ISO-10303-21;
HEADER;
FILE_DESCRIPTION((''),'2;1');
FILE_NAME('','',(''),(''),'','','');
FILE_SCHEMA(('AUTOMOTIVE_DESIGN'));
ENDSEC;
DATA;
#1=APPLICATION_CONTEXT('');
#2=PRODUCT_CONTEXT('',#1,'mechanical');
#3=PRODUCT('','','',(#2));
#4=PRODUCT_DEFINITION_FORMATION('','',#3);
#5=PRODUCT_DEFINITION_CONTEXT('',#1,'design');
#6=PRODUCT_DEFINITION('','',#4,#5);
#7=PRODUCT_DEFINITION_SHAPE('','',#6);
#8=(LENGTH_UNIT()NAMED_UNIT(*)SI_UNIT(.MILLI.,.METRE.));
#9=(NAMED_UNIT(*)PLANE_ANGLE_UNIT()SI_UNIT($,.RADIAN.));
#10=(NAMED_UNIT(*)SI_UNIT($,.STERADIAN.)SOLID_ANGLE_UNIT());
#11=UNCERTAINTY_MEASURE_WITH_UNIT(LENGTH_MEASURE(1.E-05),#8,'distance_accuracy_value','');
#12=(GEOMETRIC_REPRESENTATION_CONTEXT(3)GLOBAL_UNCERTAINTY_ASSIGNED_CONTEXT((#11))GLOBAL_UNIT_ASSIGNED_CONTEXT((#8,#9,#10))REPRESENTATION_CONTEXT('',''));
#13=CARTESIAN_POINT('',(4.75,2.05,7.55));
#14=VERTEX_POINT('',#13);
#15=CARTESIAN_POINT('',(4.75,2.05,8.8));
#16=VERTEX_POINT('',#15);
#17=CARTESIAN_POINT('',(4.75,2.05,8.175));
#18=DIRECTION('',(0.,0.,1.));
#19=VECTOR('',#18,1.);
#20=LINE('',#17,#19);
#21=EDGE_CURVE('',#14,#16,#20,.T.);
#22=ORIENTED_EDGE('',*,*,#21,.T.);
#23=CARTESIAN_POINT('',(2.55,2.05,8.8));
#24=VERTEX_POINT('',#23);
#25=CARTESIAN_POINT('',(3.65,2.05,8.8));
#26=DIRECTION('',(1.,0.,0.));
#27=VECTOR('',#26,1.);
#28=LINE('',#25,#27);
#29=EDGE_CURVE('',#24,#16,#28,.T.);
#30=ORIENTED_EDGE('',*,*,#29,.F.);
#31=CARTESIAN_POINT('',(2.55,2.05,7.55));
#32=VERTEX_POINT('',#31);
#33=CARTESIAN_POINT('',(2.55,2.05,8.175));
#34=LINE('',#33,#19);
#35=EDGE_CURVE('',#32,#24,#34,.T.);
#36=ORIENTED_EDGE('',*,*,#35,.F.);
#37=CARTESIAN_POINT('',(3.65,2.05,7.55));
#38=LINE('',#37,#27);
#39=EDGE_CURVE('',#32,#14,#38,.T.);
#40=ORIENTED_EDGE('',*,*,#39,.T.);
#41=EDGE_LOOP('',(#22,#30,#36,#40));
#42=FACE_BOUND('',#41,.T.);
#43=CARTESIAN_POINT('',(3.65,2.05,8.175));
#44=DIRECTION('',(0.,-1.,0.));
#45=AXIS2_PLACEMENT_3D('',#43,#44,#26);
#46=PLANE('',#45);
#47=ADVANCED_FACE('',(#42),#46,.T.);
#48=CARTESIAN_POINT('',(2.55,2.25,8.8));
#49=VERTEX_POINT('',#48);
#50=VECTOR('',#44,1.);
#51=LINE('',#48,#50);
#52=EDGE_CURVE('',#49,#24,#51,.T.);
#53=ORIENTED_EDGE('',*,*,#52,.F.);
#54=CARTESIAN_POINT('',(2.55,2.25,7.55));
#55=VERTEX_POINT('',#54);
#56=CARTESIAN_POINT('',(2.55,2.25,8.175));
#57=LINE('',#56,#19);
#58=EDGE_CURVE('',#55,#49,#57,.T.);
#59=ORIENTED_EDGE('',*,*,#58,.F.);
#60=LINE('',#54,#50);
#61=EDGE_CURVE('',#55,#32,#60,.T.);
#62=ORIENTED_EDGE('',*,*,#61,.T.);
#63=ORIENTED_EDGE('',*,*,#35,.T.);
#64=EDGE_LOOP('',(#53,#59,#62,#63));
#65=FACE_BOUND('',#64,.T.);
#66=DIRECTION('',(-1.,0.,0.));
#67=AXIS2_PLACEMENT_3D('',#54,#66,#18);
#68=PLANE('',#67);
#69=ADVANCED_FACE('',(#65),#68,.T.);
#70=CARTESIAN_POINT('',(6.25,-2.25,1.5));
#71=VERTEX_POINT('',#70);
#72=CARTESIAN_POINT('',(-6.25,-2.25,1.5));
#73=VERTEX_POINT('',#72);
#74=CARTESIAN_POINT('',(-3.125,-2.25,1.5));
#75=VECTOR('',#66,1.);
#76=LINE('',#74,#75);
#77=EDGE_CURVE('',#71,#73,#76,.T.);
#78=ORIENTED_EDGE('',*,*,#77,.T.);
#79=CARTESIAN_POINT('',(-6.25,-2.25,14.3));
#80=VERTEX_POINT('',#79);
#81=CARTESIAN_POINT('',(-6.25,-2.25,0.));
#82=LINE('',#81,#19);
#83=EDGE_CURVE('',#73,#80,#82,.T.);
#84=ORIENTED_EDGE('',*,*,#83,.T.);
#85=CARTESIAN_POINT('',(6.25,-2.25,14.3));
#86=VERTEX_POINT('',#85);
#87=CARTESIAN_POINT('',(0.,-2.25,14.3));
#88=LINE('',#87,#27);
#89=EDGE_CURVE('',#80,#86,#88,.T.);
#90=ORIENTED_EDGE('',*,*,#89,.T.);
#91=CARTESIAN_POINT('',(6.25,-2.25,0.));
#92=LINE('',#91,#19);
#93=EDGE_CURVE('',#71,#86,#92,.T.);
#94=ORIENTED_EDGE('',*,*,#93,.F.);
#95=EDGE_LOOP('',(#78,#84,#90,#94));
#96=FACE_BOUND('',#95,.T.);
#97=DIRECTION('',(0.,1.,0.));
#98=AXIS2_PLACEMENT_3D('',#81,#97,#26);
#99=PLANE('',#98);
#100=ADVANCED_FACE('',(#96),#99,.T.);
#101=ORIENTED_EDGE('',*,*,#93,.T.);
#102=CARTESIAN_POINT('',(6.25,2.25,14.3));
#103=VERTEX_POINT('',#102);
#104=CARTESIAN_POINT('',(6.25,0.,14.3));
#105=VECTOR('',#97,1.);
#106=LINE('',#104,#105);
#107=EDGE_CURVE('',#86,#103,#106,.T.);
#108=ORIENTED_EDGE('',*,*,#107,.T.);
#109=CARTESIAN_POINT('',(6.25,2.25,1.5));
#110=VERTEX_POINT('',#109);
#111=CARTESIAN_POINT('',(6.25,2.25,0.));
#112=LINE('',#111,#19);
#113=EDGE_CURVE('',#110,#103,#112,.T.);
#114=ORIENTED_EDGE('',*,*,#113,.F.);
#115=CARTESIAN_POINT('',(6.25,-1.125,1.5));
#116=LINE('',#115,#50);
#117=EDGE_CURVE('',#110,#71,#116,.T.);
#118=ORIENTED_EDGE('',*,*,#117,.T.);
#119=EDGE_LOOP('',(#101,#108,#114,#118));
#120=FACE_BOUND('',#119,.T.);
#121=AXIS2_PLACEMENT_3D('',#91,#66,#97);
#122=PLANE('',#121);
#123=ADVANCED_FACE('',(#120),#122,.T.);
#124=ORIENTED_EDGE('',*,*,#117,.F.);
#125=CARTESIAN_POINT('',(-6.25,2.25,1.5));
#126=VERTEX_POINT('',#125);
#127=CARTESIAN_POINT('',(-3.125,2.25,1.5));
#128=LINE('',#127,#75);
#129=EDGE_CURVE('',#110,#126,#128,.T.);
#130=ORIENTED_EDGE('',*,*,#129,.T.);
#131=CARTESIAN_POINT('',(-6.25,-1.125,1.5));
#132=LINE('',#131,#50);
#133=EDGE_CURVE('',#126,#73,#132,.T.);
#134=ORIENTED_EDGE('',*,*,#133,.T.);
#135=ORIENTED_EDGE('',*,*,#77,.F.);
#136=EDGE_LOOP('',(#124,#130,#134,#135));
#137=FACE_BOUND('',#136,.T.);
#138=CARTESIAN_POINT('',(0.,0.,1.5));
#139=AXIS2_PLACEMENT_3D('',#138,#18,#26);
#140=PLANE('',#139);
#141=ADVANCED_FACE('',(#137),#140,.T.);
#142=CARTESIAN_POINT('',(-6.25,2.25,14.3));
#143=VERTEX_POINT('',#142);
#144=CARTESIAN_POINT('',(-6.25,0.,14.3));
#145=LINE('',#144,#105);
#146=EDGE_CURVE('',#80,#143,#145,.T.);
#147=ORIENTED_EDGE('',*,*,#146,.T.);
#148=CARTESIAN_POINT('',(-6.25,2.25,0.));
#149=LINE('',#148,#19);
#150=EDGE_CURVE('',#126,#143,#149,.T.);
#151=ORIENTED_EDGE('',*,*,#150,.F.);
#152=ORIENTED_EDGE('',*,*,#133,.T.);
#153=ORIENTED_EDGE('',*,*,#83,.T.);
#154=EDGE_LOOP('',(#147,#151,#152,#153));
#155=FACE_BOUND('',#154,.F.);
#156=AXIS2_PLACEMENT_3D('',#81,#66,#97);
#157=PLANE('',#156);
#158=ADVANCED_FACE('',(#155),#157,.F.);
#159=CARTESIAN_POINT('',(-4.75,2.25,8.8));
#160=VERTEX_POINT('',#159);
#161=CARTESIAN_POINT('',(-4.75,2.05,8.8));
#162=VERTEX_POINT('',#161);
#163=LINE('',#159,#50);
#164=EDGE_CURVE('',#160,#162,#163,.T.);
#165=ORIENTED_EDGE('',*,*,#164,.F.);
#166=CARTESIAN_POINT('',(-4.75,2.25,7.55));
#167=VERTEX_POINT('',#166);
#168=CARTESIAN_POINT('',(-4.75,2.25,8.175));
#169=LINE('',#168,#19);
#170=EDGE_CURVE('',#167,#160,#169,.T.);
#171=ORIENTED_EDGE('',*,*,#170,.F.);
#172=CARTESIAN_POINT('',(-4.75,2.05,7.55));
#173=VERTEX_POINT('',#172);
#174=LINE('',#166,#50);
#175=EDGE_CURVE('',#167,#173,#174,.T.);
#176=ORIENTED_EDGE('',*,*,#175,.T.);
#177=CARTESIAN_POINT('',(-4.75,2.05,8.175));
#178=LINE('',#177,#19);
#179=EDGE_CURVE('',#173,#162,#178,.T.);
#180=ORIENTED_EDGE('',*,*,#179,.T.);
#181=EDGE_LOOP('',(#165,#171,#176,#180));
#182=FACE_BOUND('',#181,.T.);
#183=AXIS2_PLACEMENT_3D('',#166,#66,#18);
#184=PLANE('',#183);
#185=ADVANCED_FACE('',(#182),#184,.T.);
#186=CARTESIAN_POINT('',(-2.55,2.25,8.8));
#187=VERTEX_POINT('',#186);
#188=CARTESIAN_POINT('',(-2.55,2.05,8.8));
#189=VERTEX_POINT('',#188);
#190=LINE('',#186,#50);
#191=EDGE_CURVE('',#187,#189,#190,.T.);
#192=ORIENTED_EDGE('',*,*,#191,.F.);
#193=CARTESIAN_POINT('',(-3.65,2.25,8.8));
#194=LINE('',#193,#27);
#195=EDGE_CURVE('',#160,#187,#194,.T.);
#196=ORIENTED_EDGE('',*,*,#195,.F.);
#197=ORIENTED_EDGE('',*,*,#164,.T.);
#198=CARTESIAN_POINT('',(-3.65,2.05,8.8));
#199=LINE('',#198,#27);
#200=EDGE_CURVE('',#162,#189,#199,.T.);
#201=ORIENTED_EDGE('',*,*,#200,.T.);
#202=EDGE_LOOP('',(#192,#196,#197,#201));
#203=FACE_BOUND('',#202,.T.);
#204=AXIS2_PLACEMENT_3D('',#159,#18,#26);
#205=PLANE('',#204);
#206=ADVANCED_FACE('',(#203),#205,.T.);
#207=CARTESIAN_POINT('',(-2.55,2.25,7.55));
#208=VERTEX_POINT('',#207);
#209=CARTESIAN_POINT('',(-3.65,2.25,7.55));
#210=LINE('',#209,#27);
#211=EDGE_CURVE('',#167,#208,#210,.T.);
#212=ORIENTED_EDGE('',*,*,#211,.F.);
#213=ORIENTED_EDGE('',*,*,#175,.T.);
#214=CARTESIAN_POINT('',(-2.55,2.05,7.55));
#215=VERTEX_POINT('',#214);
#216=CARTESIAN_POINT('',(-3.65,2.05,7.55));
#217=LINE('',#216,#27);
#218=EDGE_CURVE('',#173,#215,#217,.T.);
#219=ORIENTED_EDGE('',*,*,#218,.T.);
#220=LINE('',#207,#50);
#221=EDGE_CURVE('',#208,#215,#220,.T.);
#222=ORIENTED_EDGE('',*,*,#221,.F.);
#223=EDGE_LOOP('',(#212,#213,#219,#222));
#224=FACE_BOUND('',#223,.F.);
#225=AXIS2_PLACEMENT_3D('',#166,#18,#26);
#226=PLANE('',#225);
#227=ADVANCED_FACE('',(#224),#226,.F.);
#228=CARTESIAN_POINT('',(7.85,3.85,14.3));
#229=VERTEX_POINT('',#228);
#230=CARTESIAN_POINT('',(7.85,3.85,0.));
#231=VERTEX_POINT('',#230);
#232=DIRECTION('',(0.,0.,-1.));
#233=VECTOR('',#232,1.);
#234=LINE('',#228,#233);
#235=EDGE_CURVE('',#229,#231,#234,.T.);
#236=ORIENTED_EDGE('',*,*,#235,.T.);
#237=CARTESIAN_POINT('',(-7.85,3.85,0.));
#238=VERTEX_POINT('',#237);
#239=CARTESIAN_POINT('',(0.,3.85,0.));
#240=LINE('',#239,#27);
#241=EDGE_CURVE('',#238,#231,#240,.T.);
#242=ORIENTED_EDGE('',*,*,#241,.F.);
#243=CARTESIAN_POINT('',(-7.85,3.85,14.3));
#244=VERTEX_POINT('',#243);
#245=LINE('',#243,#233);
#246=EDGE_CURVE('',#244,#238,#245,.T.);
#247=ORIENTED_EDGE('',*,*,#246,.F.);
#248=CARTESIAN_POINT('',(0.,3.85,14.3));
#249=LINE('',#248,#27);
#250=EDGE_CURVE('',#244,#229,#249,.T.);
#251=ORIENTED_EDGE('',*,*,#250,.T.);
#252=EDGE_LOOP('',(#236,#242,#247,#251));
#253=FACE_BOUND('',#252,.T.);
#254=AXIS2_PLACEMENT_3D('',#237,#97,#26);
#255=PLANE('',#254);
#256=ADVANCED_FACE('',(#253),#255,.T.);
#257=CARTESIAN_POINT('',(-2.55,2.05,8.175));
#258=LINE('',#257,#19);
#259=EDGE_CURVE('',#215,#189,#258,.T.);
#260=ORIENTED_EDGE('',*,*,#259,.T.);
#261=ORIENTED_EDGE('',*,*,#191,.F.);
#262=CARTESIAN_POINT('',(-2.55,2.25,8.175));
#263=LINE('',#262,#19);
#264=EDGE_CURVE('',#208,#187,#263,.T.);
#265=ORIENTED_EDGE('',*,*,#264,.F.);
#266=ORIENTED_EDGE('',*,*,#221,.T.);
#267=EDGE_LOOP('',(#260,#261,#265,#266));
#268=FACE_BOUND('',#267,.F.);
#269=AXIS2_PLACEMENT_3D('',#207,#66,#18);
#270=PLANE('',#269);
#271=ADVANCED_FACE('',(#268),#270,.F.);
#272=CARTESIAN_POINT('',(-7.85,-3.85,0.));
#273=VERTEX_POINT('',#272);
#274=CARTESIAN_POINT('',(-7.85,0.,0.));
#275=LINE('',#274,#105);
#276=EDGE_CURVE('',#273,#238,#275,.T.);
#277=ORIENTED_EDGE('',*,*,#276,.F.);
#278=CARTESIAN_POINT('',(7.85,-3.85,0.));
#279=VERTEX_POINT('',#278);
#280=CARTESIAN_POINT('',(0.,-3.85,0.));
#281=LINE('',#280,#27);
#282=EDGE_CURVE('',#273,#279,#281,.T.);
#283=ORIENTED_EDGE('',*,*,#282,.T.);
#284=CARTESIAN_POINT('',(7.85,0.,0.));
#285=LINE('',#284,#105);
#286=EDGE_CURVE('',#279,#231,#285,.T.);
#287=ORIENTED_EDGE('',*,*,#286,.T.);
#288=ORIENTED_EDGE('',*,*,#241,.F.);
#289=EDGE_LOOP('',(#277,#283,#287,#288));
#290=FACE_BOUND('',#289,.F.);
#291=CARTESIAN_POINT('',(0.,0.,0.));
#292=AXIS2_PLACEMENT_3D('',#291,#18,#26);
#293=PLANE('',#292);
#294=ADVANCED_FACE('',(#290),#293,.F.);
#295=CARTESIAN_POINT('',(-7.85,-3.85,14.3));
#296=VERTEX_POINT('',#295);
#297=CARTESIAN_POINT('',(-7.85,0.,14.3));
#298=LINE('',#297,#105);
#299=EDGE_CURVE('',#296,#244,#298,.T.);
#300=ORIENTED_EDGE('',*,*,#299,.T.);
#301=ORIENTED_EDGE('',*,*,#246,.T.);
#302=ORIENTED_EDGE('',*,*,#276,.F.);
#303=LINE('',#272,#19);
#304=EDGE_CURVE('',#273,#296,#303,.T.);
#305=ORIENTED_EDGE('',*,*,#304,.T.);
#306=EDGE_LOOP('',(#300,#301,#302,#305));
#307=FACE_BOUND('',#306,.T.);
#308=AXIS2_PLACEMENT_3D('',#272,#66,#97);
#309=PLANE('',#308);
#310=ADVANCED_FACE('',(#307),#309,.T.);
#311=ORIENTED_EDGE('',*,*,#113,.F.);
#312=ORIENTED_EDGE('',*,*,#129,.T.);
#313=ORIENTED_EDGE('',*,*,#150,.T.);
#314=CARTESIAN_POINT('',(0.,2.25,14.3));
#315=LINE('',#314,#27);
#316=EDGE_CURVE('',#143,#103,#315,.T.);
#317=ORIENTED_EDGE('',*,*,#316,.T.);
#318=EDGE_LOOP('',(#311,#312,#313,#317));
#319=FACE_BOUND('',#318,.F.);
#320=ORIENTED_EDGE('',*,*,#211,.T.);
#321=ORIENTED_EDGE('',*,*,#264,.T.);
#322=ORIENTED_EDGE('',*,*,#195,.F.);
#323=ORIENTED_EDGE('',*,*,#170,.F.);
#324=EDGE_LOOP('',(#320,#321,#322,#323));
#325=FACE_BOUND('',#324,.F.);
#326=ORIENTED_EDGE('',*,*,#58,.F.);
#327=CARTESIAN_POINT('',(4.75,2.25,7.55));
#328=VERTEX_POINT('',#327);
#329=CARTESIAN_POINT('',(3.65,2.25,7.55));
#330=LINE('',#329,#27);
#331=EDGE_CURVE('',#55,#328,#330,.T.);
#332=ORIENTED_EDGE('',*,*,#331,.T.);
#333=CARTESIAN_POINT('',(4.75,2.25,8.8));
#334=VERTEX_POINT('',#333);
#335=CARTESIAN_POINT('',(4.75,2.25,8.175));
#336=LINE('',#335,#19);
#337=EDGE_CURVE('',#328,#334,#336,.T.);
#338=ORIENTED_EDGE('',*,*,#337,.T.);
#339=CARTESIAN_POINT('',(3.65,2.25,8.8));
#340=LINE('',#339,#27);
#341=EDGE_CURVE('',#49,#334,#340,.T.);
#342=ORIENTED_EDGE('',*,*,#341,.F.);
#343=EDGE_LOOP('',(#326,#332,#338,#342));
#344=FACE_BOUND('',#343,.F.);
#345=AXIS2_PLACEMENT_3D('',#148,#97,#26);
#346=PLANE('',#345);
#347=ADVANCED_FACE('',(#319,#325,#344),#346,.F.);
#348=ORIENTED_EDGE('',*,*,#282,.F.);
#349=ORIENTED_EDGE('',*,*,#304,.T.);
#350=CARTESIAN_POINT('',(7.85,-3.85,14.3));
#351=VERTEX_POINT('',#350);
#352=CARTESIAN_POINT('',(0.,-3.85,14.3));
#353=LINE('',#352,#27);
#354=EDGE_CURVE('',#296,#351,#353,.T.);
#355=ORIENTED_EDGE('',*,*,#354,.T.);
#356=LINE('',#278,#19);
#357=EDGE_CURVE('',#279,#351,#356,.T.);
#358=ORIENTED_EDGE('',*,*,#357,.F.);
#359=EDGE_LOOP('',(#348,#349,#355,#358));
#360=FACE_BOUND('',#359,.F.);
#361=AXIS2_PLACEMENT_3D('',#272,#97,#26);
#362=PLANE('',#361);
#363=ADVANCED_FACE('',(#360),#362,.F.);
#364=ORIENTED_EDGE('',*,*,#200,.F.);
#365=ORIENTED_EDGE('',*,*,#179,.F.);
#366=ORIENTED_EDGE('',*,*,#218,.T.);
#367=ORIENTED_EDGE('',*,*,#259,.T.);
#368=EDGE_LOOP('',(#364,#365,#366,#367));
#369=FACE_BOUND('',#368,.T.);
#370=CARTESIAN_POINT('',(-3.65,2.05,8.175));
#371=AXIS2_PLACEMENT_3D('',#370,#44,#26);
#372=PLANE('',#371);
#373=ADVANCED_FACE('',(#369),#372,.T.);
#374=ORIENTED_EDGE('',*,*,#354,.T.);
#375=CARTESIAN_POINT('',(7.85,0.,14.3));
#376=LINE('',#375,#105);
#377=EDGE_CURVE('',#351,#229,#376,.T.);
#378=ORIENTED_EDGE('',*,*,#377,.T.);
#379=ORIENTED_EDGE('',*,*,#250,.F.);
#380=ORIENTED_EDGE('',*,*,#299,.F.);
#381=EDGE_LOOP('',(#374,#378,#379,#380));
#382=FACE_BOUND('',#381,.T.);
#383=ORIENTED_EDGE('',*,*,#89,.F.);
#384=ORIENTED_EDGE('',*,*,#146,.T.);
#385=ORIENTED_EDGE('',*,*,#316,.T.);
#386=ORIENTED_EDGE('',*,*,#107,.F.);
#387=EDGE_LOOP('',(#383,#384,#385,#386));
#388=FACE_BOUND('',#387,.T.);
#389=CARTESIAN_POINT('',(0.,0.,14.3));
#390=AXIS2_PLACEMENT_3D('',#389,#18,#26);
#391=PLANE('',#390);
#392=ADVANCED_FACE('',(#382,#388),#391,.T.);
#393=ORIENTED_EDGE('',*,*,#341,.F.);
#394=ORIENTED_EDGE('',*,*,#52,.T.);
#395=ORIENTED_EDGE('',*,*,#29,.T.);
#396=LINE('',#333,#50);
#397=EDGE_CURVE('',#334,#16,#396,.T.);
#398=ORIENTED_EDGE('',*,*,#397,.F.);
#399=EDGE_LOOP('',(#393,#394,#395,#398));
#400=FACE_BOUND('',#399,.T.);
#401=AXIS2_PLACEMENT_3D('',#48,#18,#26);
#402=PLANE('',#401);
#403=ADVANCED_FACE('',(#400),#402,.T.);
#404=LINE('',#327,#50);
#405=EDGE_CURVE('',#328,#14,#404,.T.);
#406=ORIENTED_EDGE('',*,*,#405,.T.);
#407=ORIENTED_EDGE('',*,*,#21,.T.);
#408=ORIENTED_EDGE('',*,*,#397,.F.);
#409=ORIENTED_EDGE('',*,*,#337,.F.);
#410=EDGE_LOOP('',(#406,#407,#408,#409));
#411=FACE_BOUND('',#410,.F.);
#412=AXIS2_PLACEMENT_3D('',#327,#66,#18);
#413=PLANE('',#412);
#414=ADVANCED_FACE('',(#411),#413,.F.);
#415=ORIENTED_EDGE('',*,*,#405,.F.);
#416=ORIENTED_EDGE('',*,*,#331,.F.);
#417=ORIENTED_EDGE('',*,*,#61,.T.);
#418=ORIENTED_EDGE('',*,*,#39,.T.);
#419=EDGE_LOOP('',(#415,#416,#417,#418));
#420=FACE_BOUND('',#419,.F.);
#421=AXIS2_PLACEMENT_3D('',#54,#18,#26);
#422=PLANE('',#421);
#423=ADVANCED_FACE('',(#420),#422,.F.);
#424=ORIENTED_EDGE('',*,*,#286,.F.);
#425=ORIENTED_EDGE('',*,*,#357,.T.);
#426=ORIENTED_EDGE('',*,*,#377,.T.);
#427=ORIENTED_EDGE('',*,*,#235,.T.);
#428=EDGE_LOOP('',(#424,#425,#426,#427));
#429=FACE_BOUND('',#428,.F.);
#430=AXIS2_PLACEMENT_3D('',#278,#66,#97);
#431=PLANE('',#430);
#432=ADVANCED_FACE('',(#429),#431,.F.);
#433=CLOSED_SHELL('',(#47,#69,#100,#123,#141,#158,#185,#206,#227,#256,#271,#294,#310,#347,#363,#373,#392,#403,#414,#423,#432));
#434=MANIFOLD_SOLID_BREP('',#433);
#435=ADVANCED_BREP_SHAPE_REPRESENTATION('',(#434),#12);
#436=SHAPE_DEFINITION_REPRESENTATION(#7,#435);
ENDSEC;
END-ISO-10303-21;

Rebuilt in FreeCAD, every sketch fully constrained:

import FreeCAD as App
import Part
import Sketcher

V = App.Vector
Q = App.Units.Quantity

doc = App.newDocument("Part")
body = doc.addObject("PartDesign::Body", "Body")

# Sketch on XY plane
sketch1 = body.newObject("Sketcher::SketchObject", "Sketch")
sketch1.AttachmentSupport = (doc.getObject("XY_Plane"), [""])
sketch1.MapMode = "FlatFace"
sketch1.addGeometry([
    Part.LineSegment(V(-8, 4, 0), V(-8, -4, 0)),
    Part.LineSegment(V(-8, -4, 0), V(8, -4, 0)),
    Part.LineSegment(V(8, -4, 0), V(8, 4, 0)),
    Part.LineSegment(V(8, 4, 0), V(-8, 4, 0)),
], False)
sketch1.addConstraint([
    Sketcher.Constraint("Coincident", 0, 2, 1, 1),
    Sketcher.Constraint("Coincident", 1, 2, 2, 1),
    Sketcher.Constraint("Coincident", 2, 2, 3, 1),
    Sketcher.Constraint("Coincident", 3, 2, 0, 1),
    Sketcher.Constraint("Vertical", 0),
    Sketcher.Constraint("Horizontal", 1),
    Sketcher.Constraint("Vertical", 2),
    Sketcher.Constraint("Horizontal", 3),
    Sketcher.Constraint("Symmetric", 0, 2, 2, 2, -1, 1),
    Sketcher.Constraint("DistanceX", 1, 1, 1, 2, Q("15.7 mm")),
    Sketcher.Constraint("DistanceY", 0, 2, 0, 1, Q("7.7 mm")),
])
pad1 = body.newObject("PartDesign::Pad", "Pad")
pad1.Profile = sketch1
pad1.Length = 1.5

# Sketch on XY plane
sketch2 = body.newObject("Sketcher::SketchObject", "Sketch001")
sketch2.AttachmentSupport = (doc.getObject("XY_Plane"), [""])
sketch2.MapMode = "FlatFace"
sketch2.addGeometry([
    Part.LineSegment(V(-7.8, 3.9, 0), V(-7.8, -3.9, 0)),  # 0
    Part.LineSegment(V(-7.8, -3.9, 0), V(7.8, -3.9, 0)),  # 1
    Part.LineSegment(V(7.8, -3.9, 0), V(7.8, 3.9, 0)),  # 2
    Part.LineSegment(V(7.8, 3.9, 0), V(-7.8, 3.9, 0)),  # 3
    Part.LineSegment(V(6.2, -2.2, 0), V(-6.2, -2.2, 0)),  # 4
    Part.LineSegment(V(-6.2, -2.2, 0), V(-6.2, 2.2, 0)),  # 5
    Part.LineSegment(V(-6.2, 2.2, 0), V(6.2, 2.2, 0)),  # 6
    Part.LineSegment(V(6.2, 2.2, 0), V(6.2, -2.2, 0)),  # 7
], False)
sketch2.addConstraint([
    Sketcher.Constraint("Coincident", 0, 2, 1, 1),
    Sketcher.Constraint("Coincident", 1, 2, 2, 1),
    Sketcher.Constraint("Coincident", 2, 2, 3, 1),
    Sketcher.Constraint("Coincident", 3, 2, 0, 1),
    Sketcher.Constraint("Coincident", 4, 2, 5, 1),
    Sketcher.Constraint("Coincident", 5, 2, 6, 1),
    Sketcher.Constraint("Coincident", 6, 2, 7, 1),
    Sketcher.Constraint("Coincident", 7, 2, 4, 1),
    Sketcher.Constraint("Vertical", 0),
    Sketcher.Constraint("Horizontal", 1),
    Sketcher.Constraint("Vertical", 2),
    Sketcher.Constraint("Horizontal", 3),
    Sketcher.Constraint("Horizontal", 4),
    Sketcher.Constraint("Vertical", 5),
    Sketcher.Constraint("Horizontal", 6),
    Sketcher.Constraint("Vertical", 7),
    Sketcher.Constraint("Symmetric", 0, 2, 2, 2, -1, 1),
    Sketcher.Constraint("Symmetric", 4, 2, 6, 2, -1, 1),
    Sketcher.Constraint("DistanceX", 1, 1, 1, 2, Q("15.7 mm")),
    Sketcher.Constraint("DistanceX", 4, 2, 4, 1, Q("12.5 mm")),
    Sketcher.Constraint("DistanceY", 0, 2, 0, 1, Q("7.7 mm")),
    Sketcher.Constraint("DistanceY", 5, 1, 5, 2, Q("4.5 mm")),
])
pad2 = body.newObject("PartDesign::Pad", "Pad001")
pad2.Profile = sketch2
pad2.Length = 14.3

# Sketch on XZ plane
sketch3 = body.newObject("Sketcher::SketchObject", "Sketch002")
sketch3.AttachmentSupport = (doc.getObject("XZ_Plane"), [""])
sketch3.MapMode = "FlatFace"
sketch3.AttachmentOffset = App.Placement(V(0, 0, -2.25), App.Rotation())
sketch3.addGeometry([
    Part.LineSegment(V(2.5, 8.8, 0), V(2.5, 7.5, 0)),  # 0
    Part.LineSegment(V(2.5, 7.5, 0), V(4.8, 7.5, 0)),  # 1
    Part.LineSegment(V(4.8, 7.5, 0), V(4.8, 8.8, 0)),  # 2
    Part.LineSegment(V(4.8, 8.8, 0), V(2.5, 8.8, 0)),  # 3
    Part.LineSegment(V(-4.8, 8.8, 0), V(-4.8, 7.5, 0)),  # 4
    Part.LineSegment(V(-4.8, 7.5, 0), V(-2.5, 7.5, 0)),  # 5
    Part.LineSegment(V(-2.5, 7.5, 0), V(-2.5, 8.8, 0)),  # 6
    Part.LineSegment(V(-2.5, 8.8, 0), V(-4.8, 8.8, 0)),  # 7
], False)
sketch3.addConstraint([
    Sketcher.Constraint("Coincident", 0, 2, 1, 1),
    Sketcher.Constraint("Coincident", 1, 2, 2, 1),
    Sketcher.Constraint("Coincident", 2, 2, 3, 1),
    Sketcher.Constraint("Coincident", 3, 2, 0, 1),
    Sketcher.Constraint("Coincident", 4, 2, 5, 1),
    Sketcher.Constraint("Coincident", 5, 2, 6, 1),
    Sketcher.Constraint("Coincident", 6, 2, 7, 1),
    Sketcher.Constraint("Coincident", 7, 2, 4, 1),
    Sketcher.Constraint("Vertical", 0),
    Sketcher.Constraint("Horizontal", 1),
    Sketcher.Constraint("Vertical", 2),
    Sketcher.Constraint("Horizontal", 3),
    Sketcher.Constraint("Vertical", 4),
    Sketcher.Constraint("Horizontal", 5),
    Sketcher.Constraint("Vertical", 6),
    Sketcher.Constraint("Horizontal", 7),
    Sketcher.Constraint("Symmetric", 1, 2, 4, 2, -2),
    Sketcher.Constraint("Symmetric", 3, 2, 6, 2, -2),
    Sketcher.Constraint("DistanceX", 1, 1, 1, 2, Q("2.2 mm")),
    Sketcher.Constraint("DistanceY", 0, 2, 0, 1, Q("1.25 mm")),
    Sketcher.Constraint("DistanceY", -1, 1, 2, 2, Q("8.8 mm")),
    Sketcher.Constraint("DistanceX", 4, 2, 0, 2, Q("7.3 mm")),
])
pad3 = body.newObject("PartDesign::Pad", "Pad002")
pad3.Profile = sketch3
pad3.Length = 0.2

doc.recompute()
